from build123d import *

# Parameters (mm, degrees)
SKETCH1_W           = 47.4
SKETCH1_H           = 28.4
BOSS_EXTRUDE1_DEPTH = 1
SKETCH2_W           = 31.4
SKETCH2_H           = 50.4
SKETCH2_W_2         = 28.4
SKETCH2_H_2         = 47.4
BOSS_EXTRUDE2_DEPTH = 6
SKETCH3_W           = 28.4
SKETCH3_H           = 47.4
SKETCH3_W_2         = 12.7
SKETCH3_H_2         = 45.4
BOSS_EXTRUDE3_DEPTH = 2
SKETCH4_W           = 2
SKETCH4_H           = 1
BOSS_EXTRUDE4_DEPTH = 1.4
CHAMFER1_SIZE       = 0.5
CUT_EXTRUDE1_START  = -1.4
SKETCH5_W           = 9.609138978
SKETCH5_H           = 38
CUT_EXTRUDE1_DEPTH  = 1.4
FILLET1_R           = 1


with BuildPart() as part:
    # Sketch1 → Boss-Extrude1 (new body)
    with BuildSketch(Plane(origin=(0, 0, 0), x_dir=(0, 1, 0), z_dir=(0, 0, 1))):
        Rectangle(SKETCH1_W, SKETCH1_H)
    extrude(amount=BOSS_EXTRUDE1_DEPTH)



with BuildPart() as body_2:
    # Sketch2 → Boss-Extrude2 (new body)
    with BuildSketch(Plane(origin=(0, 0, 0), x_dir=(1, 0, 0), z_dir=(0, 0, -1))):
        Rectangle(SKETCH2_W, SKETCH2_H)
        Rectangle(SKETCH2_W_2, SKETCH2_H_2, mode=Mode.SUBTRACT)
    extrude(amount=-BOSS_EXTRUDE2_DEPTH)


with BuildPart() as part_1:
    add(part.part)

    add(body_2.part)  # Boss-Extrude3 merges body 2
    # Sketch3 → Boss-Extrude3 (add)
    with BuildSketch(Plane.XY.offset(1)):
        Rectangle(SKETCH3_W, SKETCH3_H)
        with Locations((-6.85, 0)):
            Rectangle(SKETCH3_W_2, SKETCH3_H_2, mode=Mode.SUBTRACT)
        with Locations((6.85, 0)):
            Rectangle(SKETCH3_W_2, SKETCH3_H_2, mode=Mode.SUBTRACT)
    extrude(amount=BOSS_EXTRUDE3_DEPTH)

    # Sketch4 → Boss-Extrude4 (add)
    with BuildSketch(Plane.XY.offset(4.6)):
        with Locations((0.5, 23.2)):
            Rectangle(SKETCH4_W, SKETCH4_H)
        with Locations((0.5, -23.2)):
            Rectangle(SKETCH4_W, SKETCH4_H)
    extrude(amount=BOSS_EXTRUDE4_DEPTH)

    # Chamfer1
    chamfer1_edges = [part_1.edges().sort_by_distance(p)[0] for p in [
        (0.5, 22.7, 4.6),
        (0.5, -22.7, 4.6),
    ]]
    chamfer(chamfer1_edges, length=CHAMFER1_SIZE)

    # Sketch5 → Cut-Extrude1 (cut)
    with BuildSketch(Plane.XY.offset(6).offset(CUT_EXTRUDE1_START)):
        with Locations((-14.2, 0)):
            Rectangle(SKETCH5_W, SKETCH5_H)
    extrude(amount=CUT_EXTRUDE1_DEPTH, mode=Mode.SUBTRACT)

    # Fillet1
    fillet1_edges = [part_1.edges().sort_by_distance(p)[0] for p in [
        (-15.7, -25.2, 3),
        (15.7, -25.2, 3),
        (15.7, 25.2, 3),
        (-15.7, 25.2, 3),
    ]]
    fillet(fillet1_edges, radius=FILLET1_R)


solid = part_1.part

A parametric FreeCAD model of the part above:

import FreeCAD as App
import Part
import Sketcher


def edges_at(feature, points):
    """Names of the edges that pass closest to the given points."""
    edges = feature.Shape.Edges
    near = lambda p: min(range(len(edges)), key=lambda i: edges[i].distToShape(Part.Vertex(*p))[0])
    return sorted({f"Edge{near(p) + 1}" for p in points})

doc = App.newDocument("Part")
params = doc.addObject("Spreadsheet::Sheet", "Params")
for row, (alias, value) in enumerate([
    ("sketch1_width", "28.4 mm"),
    ("sketch1_height", "47.4 mm"),
    ("pad1_length", "1 mm"),
    ("sketch2_width", "31.4 mm"),
    ("sketch2_width2", "28.4 mm"),
    ("sketch2_height", "50.4 mm"),
    ("sketch2_height2", "47.4 mm"),
    ("pad2_length", "6 mm"),
    ("sketch3_width", "28.4 mm"),
    ("sketch3_width2", "12.7 mm"),
    ("sketch3_height", "47.4 mm"),
    ("sketch3_height2", "45.4 mm"),
    ("pad3_length", "2 mm"),
    ("sketch4_width", "2 mm"),
    ("sketch4_height", "1 mm"),
    ("pad4_length", "1.4 mm"),
    ("chamfer_size", "0.5 mm"),
    ("sketch5_height", "38 mm"),
    ("pocket1_length", "1.4 mm"),
    ("fillet_radius", "1 mm"),
], start=1):
    params.set(f"A{row}", alias)
    params.set(f"B{row}", "=" + value)
    params.setAlias(f"B{row}", alias)

body = doc.addObject("PartDesign::Body", "Body")

# Sketch on XY plane
sketch1 = body.newObject("Sketcher::SketchObject", "Sketch")
sketch1.AttachmentSupport = (doc.getObject("XY_Plane"), [""])
sketch1.MapMode = "FlatFace"
sketch1.addGeometry(Part.LineSegment(App.Vector(-14, -24, 0), App.Vector(14, -24, 0)), False)
sketch1.addGeometry(Part.LineSegment(App.Vector(14, -24, 0), App.Vector(14, 24, 0)), False)
sketch1.addGeometry(Part.LineSegment(App.Vector(14, 24, 0), App.Vector(-14, 24, 0)), False)
sketch1.addGeometry(Part.LineSegment(App.Vector(-14, 24, 0), App.Vector(-14, -24, 0)), False)
sketch1.addConstraint(Sketcher.Constraint("Coincident", 0, 2, 1, 1))
sketch1.addConstraint(Sketcher.Constraint("Coincident", 1, 2, 2, 1))
sketch1.addConstraint(Sketcher.Constraint("Coincident", 2, 2, 3, 1))
sketch1.addConstraint(Sketcher.Constraint("Coincident", 3, 2, 0, 1))
sketch1.addConstraint(Sketcher.Constraint("Horizontal", 0))
sketch1.addConstraint(Sketcher.Constraint("Vertical", 1))
sketch1.addConstraint(Sketcher.Constraint("Horizontal", 2))
sketch1.addConstraint(Sketcher.Constraint("Vertical", 3))
sketch1.addConstraint(Sketcher.Constraint("Symmetric", 0, 2, 2, 2, -1, 1))
sketch1.addConstraint(Sketcher.Constraint("DistanceX", 0, 1, 0, 2, 28.4))
sketch1.addConstraint(Sketcher.Constraint("DistanceY", 1, 1, 1, 2, 47.4))
sketch1.setExpression("Constraints[9]", "Params.sketch1_width")
sketch1.setExpression("Constraints[10]", "Params.sketch1_height")
pad1 = body.newObject("PartDesign::Pad", "Pad")
pad1.Profile = sketch1
pad1.setExpression("Length", "Params.pad1_length")
body2 = doc.addObject("PartDesign::Body", "Body001")

# Sketch on XY plane
sketch2 = body2.newObject("Sketcher::SketchObject", "Sketch001")
sketch2.AttachmentSupport = (doc.getObject("XY_Plane001"), [""])
sketch2.MapMode = "FlatFace"
sketch2.addGeometry(Part.LineSegment(App.Vector(-16, -25, 0), App.Vector(-16, 25, 0)), False)
sketch2.addGeometry(Part.LineSegment(App.Vector(-16, 25, 0), App.Vector(16, 25, 0)), False)
sketch2.addGeometry(Part.LineSegment(App.Vector(16, 25, 0), App.Vector(16, -25, 0)), False)
sketch2.addGeometry(Part.LineSegment(App.Vector(16, -25, 0), App.Vector(-16, -25, 0)), False)
sketch2.addGeometry(Part.LineSegment(App.Vector(14, 24, 0), App.Vector(-14, 24, 0)), False)
sketch2.addGeometry(Part.LineSegment(App.Vector(-14, 24, 0), App.Vector(-14, -24, 0)), False)
sketch2.addGeometry(Part.LineSegment(App.Vector(-14, -24, 0), App.Vector(14, -24, 0)), False)
sketch2.addGeometry(Part.LineSegment(App.Vector(14, -24, 0), App.Vector(14, 24, 0)), False)
sketch2.addConstraint(Sketcher.Constraint("Coincident", 0, 2, 1, 1))
sketch2.addConstraint(Sketcher.Constraint("Coincident", 1, 2, 2, 1))
sketch2.addConstraint(Sketcher.Constraint("Coincident", 2, 2, 3, 1))
sketch2.addConstraint(Sketcher.Constraint("Coincident", 3, 2, 0, 1))
sketch2.addConstraint(Sketcher.Constraint("Coincident", 4, 2, 5, 1))
sketch2.addConstraint(Sketcher.Constraint("Coincident", 5, 2, 6, 1))
sketch2.addConstraint(Sketcher.Constraint("Coincident", 6, 2, 7, 1))
sketch2.addConstraint(Sketcher.Constraint("Coincident", 7, 2, 4, 1))
sketch2.addConstraint(Sketcher.Constraint("Vertical", 0))
sketch2.addConstraint(Sketcher.Constraint("Horizontal", 1))
sketch2.addConstraint(Sketcher.Constraint("Vertical", 2))
sketch2.addConstraint(Sketcher.Constraint("Horizontal", 3))
sketch2.addConstraint(Sketcher.Constraint("Horizontal", 4))
sketch2.addConstraint(Sketcher.Constraint("Vertical", 5))
sketch2.addConstraint(Sketcher.Constraint("Horizontal", 6))
sketch2.addConstraint(Sketcher.Constraint("Vertical", 7))
sketch2.addConstraint(Sketcher.Constraint("Symmetric", 0, 2, 2, 2, -1, 1))
sketch2.addConstraint(Sketcher.Constraint("Symmetric", 4, 2, 6, 2, -1, 1))
sketch2.addConstraint(Sketcher.Constraint("DistanceX", 1, 1, 1, 2, 31.4))
sketch2.addConstraint(Sketcher.Constraint("DistanceX", 4, 2, 4, 1, 28.4))
sketch2.addConstraint(Sketcher.Constraint("DistanceY", 0, 1, 0, 2, 50.4))
sketch2.addConstraint(Sketcher.Constraint("DistanceY", 5, 2, 5, 1, 47.4))
sketch2.setExpression("Constraints[18]", "Params.sketch2_width")
sketch2.setExpression("Constraints[19]", "Params.sketch2_width2")
sketch2.setExpression("Constraints[20]", "Params.sketch2_height")
sketch2.setExpression("Constraints[21]", "Params.sketch2_height2")
pad2 = body2.newObject("PartDesign::Pad", "Pad001")
pad2.Profile = sketch2
pad2.setExpression("Length", "Params.pad2_length")
doc.recompute()

boolean = body.newObject("PartDesign::Boolean", "Boolean")
boolean.Type = "Fuse"
boolean.addObjects([body2])

# Sketch on XY plane
sketch3 = body.newObject("Sketcher::SketchObject", "Sketch002")
sketch3.AttachmentSupport = (doc.getObject("XY_Plane"), [""])
sketch3.MapMode = "FlatFace"
sketch3.AttachmentOffset = App.Placement(App.Vector(0, 0, 1), App.Rotation())
sketch3.addGeometry(Part.LineSegment(App.Vector(-14, 24, 0), App.Vector(-14, -24, 0)), False)
sketch3.addGeometry(Part.LineSegment(App.Vector(-14, -24, 0), App.Vector(14, -24, 0)), False)
sketch3.addGeometry(Part.LineSegment(App.Vector(14, -24, 0), App.Vector(14, 24, 0)), False)
sketch3.addGeometry(Part.LineSegment(App.Vector(14, 24, 0), App.Vector(-14, 24, 0)), False)
sketch3.addGeometry(Part.LineSegment(App.Vector(0, -23, 0), App.Vector(-13, -23, 0)), False)
sketch3.addGeometry(Part.LineSegment(App.Vector(-13, -23, 0), App.Vector(-13, 23, 0)), False)
sketch3.addGeometry(Part.LineSegment(App.Vector(-13, 23, 0), App.Vector(0, 23, 0)), False)
sketch3.addGeometry(Part.LineSegment(App.Vector(0, 23, 0), App.Vector(0, -23, 0)), False)
sketch3.addGeometry(Part.LineSegment(App.Vector(13, -23, 0), App.Vector(0, -23, 0)), False)
sketch3.addGeometry(Part.LineSegment(App.Vector(0, -23, 0), App.Vector(0, 23, 0)), False)
sketch3.addGeometry(Part.LineSegment(App.Vector(0, 23, 0), App.Vector(13, 23, 0)), False)
sketch3.addGeometry(Part.LineSegment(App.Vector(13, 23, 0), App.Vector(13, -23, 0)), False)
sketch3.addConstraint(Sketcher.Constraint("Coincident", 0, 2, 1, 1))
sketch3.addConstraint(Sketcher.Constraint("Coincident", 1, 2, 2, 1))
sketch3.addConstraint(Sketcher.Constraint("Coincident", 2, 2, 3, 1))
sketch3.addConstraint(Sketcher.Constraint("Coincident", 3, 2, 0, 1))
sketch3.addConstraint(Sketcher.Constraint("Coincident", 4, 2, 5, 1))
sketch3.addConstraint(Sketcher.Constraint("Coincident", 5, 2, 6, 1))
sketch3.addConstraint(Sketcher.Constraint("Coincident", 6, 2, 7, 1))
sketch3.addConstraint(Sketcher.Constraint("Coincident", 7, 2, 4, 1))
sketch3.addConstraint(Sketcher.Constraint("Coincident", 8, 2, 9, 1))
sketch3.addConstraint(Sketcher.Constraint("Coincident", 9, 2, 10, 1))
sketch3.addConstraint(Sketcher.Constraint("Coincident", 10, 2, 11, 1))
sketch3.addConstraint(Sketcher.Constraint("Coincident", 11, 2, 8, 1))
sketch3.addConstraint(Sketcher.Constraint("Vertical", 0))
sketch3.addConstraint(Sketcher.Constraint("Horizontal", 1))
sketch3.addConstraint(Sketcher.Constraint("Vertical", 2))
sketch3.addConstraint(Sketcher.Constraint("Horizontal", 3))
sketch3.addConstraint(Sketcher.Constraint("Horizontal", 4))
sketch3.addConstraint(Sketcher.Constraint("Vertical", 5))
sketch3.addConstraint(Sketcher.Constraint("Horizontal", 6))
sketch3.addConstraint(Sketcher.Constraint("Vertical", 7))
sketch3.addConstraint(Sketcher.Constraint("Horizontal", 8))
sketch3.addConstraint(Sketcher.Constraint("Vertical", 9))
sketch3.addConstraint(Sketcher.Constraint("Horizontal", 10))
sketch3.addConstraint(Sketcher.Constraint("Vertical", 11))
sketch3.addConstraint(Sketcher.Constraint("Symmetric", 0, 2, 2, 2, -1, 1))
sketch3.addConstraint(Sketcher.Constraint("Symmetric", 6, 2, 8, 2, -1, 1))
sketch3.addConstraint(Sketcher.Constraint("Symmetric", 4, 2, 10, 2, -1, 1))
sketch3.addConstraint(Sketcher.Constraint("Horizontal", 7, 2, 8, 2))
sketch3.addConstraint(Sketcher.Constraint("DistanceX", 1, 1, 1, 2, 28.4))
sketch3.addConstraint(Sketcher.Constraint("DistanceX", 4, 2, 4, 1, 12.7))
sketch3.addConstraint(Sketcher.Constraint("DistanceY", 0, 2, 0, 1, 47.4))
sketch3.addConstraint(Sketcher.Constraint("DistanceY", 5, 1, 5, 2, 45.4))
sketch3.addConstraint(Sketcher.Constraint("DistanceX", 0, 2, 4, 2, 1.0))
sketch3.setExpression("Constraints[28]", "Params.sketch3_width")
sketch3.setExpression("Constraints[29]", "Params.sketch3_width2")
sketch3.setExpression("Constraints[30]", "Params.sketch3_height")
sketch3.setExpression("Constraints[31]", "Params.sketch3_height2")
pad3 = body.newObject("PartDesign::Pad", "Pad002")
pad3.Profile = sketch3
pad3.setExpression("Length", "Params.pad3_length")

# Sketch on XY plane
sketch4 = body.newObject("Sketcher::SketchObject", "Sketch003")
sketch4.AttachmentSupport = (doc.getObject("XY_Plane"), [""])
sketch4.MapMode = "FlatFace"
sketch4.AttachmentOffset = App.Placement(App.Vector(0, 0, 4.6), App.Rotation())
sketch4.addGeometry(Part.LineSegment(App.Vector(-0.5, 23.7, 0), App.Vector(-0.5, 22.7, 0)), False)
sketch4.addGeometry(Part.LineSegment(App.Vector(-0.5, 22.7, 0), App.Vector(1.5, 22.7, 0)), False)
sketch4.addGeometry(Part.LineSegment(App.Vector(1.5, 22.7, 0), App.Vector(1.5, 23.7, 0)), False)
sketch4.addGeometry(Part.LineSegment(App.Vector(1.5, 23.7, 0), App.Vector(-0.5, 23.7, 0)), False)
sketch4.addGeometry(Part.LineSegment(App.Vector(-0.5, -22.7, 0), App.Vector(-0.5, -23.7, 0)), False)
sketch4.addGeometry(Part.LineSegment(App.Vector(-0.5, -23.7, 0), App.Vector(1.5, -23.7, 0)), False)
sketch4.addGeometry(Part.LineSegment(App.Vector(1.5, -23.7, 0), App.Vector(1.5, -22.7, 0)), False)
sketch4.addGeometry(Part.LineSegment(App.Vector(1.5, -22.7, 0), App.Vector(-0.5, -22.7, 0)), False)
sketch4.addConstraint(Sketcher.Constraint("Coincident", 0, 2, 1, 1))
sketch4.addConstraint(Sketcher.Constraint("Coincident", 1, 2, 2, 1))
sketch4.addConstraint(Sketcher.Constraint("Coincident", 2, 2, 3, 1))
sketch4.addConstraint(Sketcher.Constraint("Coincident", 3, 2, 0, 1))
sketch4.addConstraint(Sketcher.Constraint("Coincident", 4, 2, 5, 1))
sketch4.addConstraint(Sketcher.Constraint("Coincident", 5, 2, 6, 1))
sketch4.addConstraint(Sketcher.Constraint("Coincident", 6, 2, 7, 1))
sketch4.addConstraint(Sketcher.Constraint("Coincident", 7, 2, 4, 1))
sketch4.addConstraint(Sketcher.Constraint("Vertical", 0))
sketch4.addConstraint(Sketcher.Constraint("Horizontal", 1))
sketch4.addConstraint(Sketcher.Constraint("Vertical", 2))
sketch4.addConstraint(Sketcher.Constraint("Horizontal", 3))
sketch4.addConstraint(Sketcher.Constraint("Vertical", 4))
sketch4.addConstraint(Sketcher.Constraint("Horizontal", 5))
sketch4.addConstraint(Sketcher.Constraint("Vertical", 6))
sketch4.addConstraint(Sketcher.Constraint("Horizontal", 7))
sketch4.addConstraint(Sketcher.Constraint("Symmetric", 3, 2, 4, 2, -1))
sketch4.addConstraint(Sketcher.Constraint("Symmetric", 1, 2, 6, 2, -1))
sketch4.addConstraint(Sketcher.Constraint("DistanceX", 1, 1, 1, 2, 2.0))
sketch4.addConstraint(Sketcher.Constraint("DistanceY", 0, 2, 0, 1, 1.0))
sketch4.addConstraint(Sketcher.Constraint("DistanceX", 0, 2, -1, 1, 0.5))
sketch4.addConstraint(Sketcher.Constraint("DistanceY", -1, 1, 0, 2, 22.7))
sketch4.setExpression("Constraints[18]", "Params.sketch4_width")
sketch4.setExpression("Constraints[19]", "Params.sketch4_height")
pad4 = body.newObject("PartDesign::Pad", "Pad003")
pad4.Profile = sketch4
pad4.setExpression("Length", "Params.pad4_length")
doc.recompute()

chamfer = body.newObject("PartDesign::Chamfer", "Chamfer")
chamfer.Base = (pad4, edges_at(pad4, [(0.5, 22.7, 4.6), (0.5, -22.7, 4.6)]))
chamfer.setExpression("Size", "Params.chamfer_size")

# Sketch on XY plane
sketch5 = body.newObject("Sketcher::SketchObject", "Sketch004")
sketch5.AttachmentSupport = (doc.getObject("XY_Plane"), [""])
sketch5.MapMode = "FlatFace"
sketch5.AttachmentOffset = App.Placement(App.Vector(0, 0, 4.6), App.Rotation())
sketch5.addGeometry(Part.LineSegment(App.Vector(-19, 19, 0), App.Vector(-19, -19, 0)), False)
sketch5.addGeometry(Part.LineSegment(App.Vector(-19, -19, 0), App.Vector(-9, -19, 0)), False)
sketch5.addGeometry(Part.LineSegment(App.Vector(-9, -19, 0), App.Vector(-9, 19, 0)), False)
sketch5.addGeometry(Part.LineSegment(App.Vector(-9, 19, 0), App.Vector(-19, 19, 0)), False)
sketch5.addConstraint(Sketcher.Constraint("Coincident", 0, 2, 1, 1))
sketch5.addConstraint(Sketcher.Constraint("Coincident", 1, 2, 2, 1))
sketch5.addConstraint(Sketcher.Constraint("Coincident", 2, 2, 3, 1))
sketch5.addConstraint(Sketcher.Constraint("Coincident", 3, 2, 0, 1))
sketch5.addConstraint(Sketcher.Constraint("Vertical", 0))
sketch5.addConstraint(Sketcher.Constraint("Horizontal", 1))
sketch5.addConstraint(Sketcher.Constraint("Vertical", 2))
sketch5.addConstraint(Sketcher.Constraint("Horizontal", 3))
sketch5.addConstraint(Sketcher.Constraint("DistanceY", 0, 2, 0, 1, 38.0))
sketch5.addConstraint(Sketcher.Constraint("DistanceY", 0, 2, -1, 1, 19.0))
sketch5.addConstraint(Sketcher.Constraint("DistanceX", 1, 1, 1, 2, 9.609139))
sketch5.addConstraint(Sketcher.Constraint("DistanceX", 0, 2, -1, 1, 19.004569))
sketch5.setExpression("Constraints[8]", "Params.sketch5_height")
pocket1 = body.newObject("PartDesign::Pocket", "Pocket")
pocket1.Profile = sketch5
pocket1.setExpression("Length", "Params.pocket1_length")
pocket1.Reversed = True
doc.recompute()

fillet = body.newObject("PartDesign::Fillet", "Fillet")
fillet.Base = (pocket1, edges_at(pocket1, [
    (-15.7, -25.2, 3),
    (15.7, -25.2, 3),
    (15.7, 25.2, 3),
    (-15.7, 25.2, 3),
]))
fillet.setExpression("Radius", "Params.fillet_radius")

doc.recompute()
